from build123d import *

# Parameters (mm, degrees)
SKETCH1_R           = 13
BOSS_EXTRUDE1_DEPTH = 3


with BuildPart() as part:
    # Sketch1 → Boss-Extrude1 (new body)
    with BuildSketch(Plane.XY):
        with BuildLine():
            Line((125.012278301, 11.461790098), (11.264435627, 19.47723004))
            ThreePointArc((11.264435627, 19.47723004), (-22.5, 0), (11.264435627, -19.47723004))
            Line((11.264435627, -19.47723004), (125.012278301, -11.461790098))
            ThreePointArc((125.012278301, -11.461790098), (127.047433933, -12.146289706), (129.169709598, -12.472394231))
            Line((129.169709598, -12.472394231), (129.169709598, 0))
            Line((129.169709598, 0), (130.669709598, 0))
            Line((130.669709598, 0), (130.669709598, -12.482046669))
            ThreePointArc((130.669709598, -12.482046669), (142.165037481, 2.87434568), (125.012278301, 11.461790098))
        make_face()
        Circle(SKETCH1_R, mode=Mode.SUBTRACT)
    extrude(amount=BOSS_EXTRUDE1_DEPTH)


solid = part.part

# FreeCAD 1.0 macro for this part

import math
import FreeCAD as App
import Part
import Sketcher
from FreeCAD import Vector
Q = App.Units.Quantity

doc = App.newDocument("Part")
body = doc.addObject("PartDesign::Body", "Body")

sketch1 = body.newObject("Sketcher::SketchObject", "Sketch")
sketch1.AttachmentSupport = (doc.getObject("XY_Plane"), [""])
sketch1.MapMode = "FlatFace"
sketch1.addGeometry(Part.LineSegment(Vector(125, 11.5, 0), Vector(11.3, 19.5, 0)), False)
sketch1.addGeometry(Part.ArcOfCircle(Part.Circle(Vector(0, 0, 0), Vector(0, 0, 1), 22.5), math.radians(60), math.radians(300)), False)
sketch1.addGeometry(Part.LineSegment(Vector(11.3, -19.5, 0), Vector(125, -11.5, 0)), False)
sketch1.addGeometry(Part.ArcOfCircle(Part.Circle(Vector(130, 0, 0), Vector(0, 0, 1), 12.5), math.radians(-113.52), math.radians(-93.81)), False)
sketch1.addGeometry(Part.LineSegment(Vector(129.2, -12.5, 0), Vector(129.2, 0, 0)), False)
sketch1.addGeometry(Part.LineSegment(Vector(129.2, 0, 0), Vector(130.7, 0, 0)), False)
sketch1.addGeometry(Part.LineSegment(Vector(130.7, 0, 0), Vector(130.7, -12.5, 0)), False)
sketch1.addGeometry(Part.ArcOfCircle(Part.Circle(Vector(130, 0, 0), Vector(0, 0, 1), 12.5), math.radians(-87), math.radians(114)), False)
sketch1.addGeometry(Part.Circle(Vector(0, 0, 0), Vector(0, 0, 1), 13), False)
sketch1.addConstraint(Sketcher.Constraint("Coincident", 0, 2, 1, 1))
sketch1.addConstraint(Sketcher.Constraint("Coincident", 1, 2, 2, 1))
sketch1.addConstraint(Sketcher.Constraint("Coincident", 2, 2, 3, 1))
sketch1.addConstraint(Sketcher.Constraint("Coincident", 3, 2, 4, 1))
sketch1.addConstraint(Sketcher.Constraint("Coincident", 4, 2, 5, 1))
sketch1.addConstraint(Sketcher.Constraint("Coincident", 5, 2, 6, 1))
sketch1.addConstraint(Sketcher.Constraint("Coincident", 6, 2, 7, 1))
sketch1.addConstraint(Sketcher.Constraint("Coincident", 7, 2, 0, 1))
sketch1.addConstraint(Sketcher.Constraint("Vertical", 4))
sketch1.addConstraint(Sketcher.Constraint("Horizontal", 5))
sketch1.addConstraint(Sketcher.Constraint("Vertical", 6))
sketch1.addConstraint(Sketcher.Constraint("Coincident", 1, 3, -1, 1))
sketch1.addConstraint(Sketcher.Constraint("Coincident", 8, 3, -1, 1))
sketch1.addConstraint(Sketcher.Constraint("Coincident", 7, 3, 3, 3))
sketch1.addConstraint(Sketcher.Constraint("Equal", 3, 7))
sketch1.addConstraint(Sketcher.Constraint("Symmetric", 2, 2, 7, 2, -1))
sketch1.addConstraint(Sketcher.Constraint("PointOnObject", 4, 2, -1))
sketch1.addConstraint(Sketcher.Constraint("Vertical", 0, 2, 1, 2))
sketch1.addConstraint(Sketcher.Constraint("Diameter", 8, Q("26 mm")))
sketch1.addConstraint(Sketcher.Constraint("Radius", 1, Q("22.5 mm")))
sketch1.addConstraint(Sketcher.Constraint("Radius", 3, Q("12.5 mm")))
sketch1.addConstraint(Sketcher.Constraint("DistanceX", 5, 1, 5, 2, Q("1.5 mm")))
sketch1.addConstraint(Sketcher.Constraint("DistanceX", -1, 1, 3, 3, Q("130 mm")))
sketch1.addConstraint(Sketcher.Constraint("DistanceY", 4, 1, 4, 2, Q("12.472394 mm")))
sketch1.addConstraint(Sketcher.Constraint("DistanceY", -1, 1, 0, 2, Q("19.47723 mm")))
sketch1.addConstraint(Sketcher.Constraint("DistanceX", -1, 1, 2, 2, Q("125.012278 mm")))
pad1 = body.newObject("PartDesign::Pad", "Pad")
pad1.Profile = sketch1
pad1.Length = 3

doc.recompute()
